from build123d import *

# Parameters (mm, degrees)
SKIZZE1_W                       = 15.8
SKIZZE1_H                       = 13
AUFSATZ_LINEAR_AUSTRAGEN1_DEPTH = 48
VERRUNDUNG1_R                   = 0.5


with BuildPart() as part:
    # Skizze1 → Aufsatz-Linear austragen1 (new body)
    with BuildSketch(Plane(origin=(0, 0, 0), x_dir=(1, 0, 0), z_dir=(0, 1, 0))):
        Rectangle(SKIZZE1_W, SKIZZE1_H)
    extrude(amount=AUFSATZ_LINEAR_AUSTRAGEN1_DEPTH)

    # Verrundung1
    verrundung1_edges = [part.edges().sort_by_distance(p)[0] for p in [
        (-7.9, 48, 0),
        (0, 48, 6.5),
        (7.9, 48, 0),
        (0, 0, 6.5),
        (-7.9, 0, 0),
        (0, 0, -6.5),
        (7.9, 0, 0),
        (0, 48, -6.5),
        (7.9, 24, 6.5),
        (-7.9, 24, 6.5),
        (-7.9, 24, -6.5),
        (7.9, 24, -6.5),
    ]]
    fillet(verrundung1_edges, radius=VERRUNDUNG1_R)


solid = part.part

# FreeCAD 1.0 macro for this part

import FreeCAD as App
import Part
import Sketcher
Q = App.Units.Quantity


def add_polygon(sketch, points):
    """Adds a closed chain of lines whose ends are joined by coincident constraints."""
    first, n = sketch.GeometryCount, len(points)
    for a, b in zip(points, points[1:] + points[:1]):
        sketch.addGeometry(Part.LineSegment(App.Vector(*a, 0), App.Vector(*b, 0)), False)
    for i in range(n):
        sketch.addConstraint(Sketcher.Constraint("Coincident", first + i, 2, first + (i + 1) % n, 1))

doc = App.newDocument("Part")
body = doc.addObject("PartDesign::Body", "Body")

# Sketch on XZ plane
sketch1 = doc.addObject("Sketcher::SketchObject", "Sketch")
body.addObject(sketch1)
sketch1.AttachmentSupport = (doc.XZ_Plane, [""])
sketch1.MapMode = "FlatFace"
add_polygon(sketch1, [(-8, -6), (-8, 6), (8, 6), (8, -6)])  # lines 0-3
sketch1.addConstraint([
    Sketcher.Constraint("Vertical", 0),
    Sketcher.Constraint("Horizontal", 1),
    Sketcher.Constraint("Vertical", 2),
    Sketcher.Constraint("Horizontal", 3),
    Sketcher.Constraint("Symmetric", 0, 2, 2, 2, -1, 1),
    Sketcher.Constraint("DistanceY", 0, 1, 0, 2, Q("13 mm")),
    Sketcher.Constraint("DistanceX", 1, 1, 1, 2, Q("15.8 mm")),
])
pad1 = doc.addObject("PartDesign::Pad", "Pad")
body.addObject(pad1)
pad1.Profile = sketch1
pad1.Length = 48
pad1.Reversed = True
doc.recompute()

fillet = doc.addObject("PartDesign::Fillet", "Fillet")
body.addObject(fillet)
fillet.Base = (pad1, ["Edge1"])
fillet.UseAllEdges = True
fillet.Radius = 0.5

doc.recompute()
